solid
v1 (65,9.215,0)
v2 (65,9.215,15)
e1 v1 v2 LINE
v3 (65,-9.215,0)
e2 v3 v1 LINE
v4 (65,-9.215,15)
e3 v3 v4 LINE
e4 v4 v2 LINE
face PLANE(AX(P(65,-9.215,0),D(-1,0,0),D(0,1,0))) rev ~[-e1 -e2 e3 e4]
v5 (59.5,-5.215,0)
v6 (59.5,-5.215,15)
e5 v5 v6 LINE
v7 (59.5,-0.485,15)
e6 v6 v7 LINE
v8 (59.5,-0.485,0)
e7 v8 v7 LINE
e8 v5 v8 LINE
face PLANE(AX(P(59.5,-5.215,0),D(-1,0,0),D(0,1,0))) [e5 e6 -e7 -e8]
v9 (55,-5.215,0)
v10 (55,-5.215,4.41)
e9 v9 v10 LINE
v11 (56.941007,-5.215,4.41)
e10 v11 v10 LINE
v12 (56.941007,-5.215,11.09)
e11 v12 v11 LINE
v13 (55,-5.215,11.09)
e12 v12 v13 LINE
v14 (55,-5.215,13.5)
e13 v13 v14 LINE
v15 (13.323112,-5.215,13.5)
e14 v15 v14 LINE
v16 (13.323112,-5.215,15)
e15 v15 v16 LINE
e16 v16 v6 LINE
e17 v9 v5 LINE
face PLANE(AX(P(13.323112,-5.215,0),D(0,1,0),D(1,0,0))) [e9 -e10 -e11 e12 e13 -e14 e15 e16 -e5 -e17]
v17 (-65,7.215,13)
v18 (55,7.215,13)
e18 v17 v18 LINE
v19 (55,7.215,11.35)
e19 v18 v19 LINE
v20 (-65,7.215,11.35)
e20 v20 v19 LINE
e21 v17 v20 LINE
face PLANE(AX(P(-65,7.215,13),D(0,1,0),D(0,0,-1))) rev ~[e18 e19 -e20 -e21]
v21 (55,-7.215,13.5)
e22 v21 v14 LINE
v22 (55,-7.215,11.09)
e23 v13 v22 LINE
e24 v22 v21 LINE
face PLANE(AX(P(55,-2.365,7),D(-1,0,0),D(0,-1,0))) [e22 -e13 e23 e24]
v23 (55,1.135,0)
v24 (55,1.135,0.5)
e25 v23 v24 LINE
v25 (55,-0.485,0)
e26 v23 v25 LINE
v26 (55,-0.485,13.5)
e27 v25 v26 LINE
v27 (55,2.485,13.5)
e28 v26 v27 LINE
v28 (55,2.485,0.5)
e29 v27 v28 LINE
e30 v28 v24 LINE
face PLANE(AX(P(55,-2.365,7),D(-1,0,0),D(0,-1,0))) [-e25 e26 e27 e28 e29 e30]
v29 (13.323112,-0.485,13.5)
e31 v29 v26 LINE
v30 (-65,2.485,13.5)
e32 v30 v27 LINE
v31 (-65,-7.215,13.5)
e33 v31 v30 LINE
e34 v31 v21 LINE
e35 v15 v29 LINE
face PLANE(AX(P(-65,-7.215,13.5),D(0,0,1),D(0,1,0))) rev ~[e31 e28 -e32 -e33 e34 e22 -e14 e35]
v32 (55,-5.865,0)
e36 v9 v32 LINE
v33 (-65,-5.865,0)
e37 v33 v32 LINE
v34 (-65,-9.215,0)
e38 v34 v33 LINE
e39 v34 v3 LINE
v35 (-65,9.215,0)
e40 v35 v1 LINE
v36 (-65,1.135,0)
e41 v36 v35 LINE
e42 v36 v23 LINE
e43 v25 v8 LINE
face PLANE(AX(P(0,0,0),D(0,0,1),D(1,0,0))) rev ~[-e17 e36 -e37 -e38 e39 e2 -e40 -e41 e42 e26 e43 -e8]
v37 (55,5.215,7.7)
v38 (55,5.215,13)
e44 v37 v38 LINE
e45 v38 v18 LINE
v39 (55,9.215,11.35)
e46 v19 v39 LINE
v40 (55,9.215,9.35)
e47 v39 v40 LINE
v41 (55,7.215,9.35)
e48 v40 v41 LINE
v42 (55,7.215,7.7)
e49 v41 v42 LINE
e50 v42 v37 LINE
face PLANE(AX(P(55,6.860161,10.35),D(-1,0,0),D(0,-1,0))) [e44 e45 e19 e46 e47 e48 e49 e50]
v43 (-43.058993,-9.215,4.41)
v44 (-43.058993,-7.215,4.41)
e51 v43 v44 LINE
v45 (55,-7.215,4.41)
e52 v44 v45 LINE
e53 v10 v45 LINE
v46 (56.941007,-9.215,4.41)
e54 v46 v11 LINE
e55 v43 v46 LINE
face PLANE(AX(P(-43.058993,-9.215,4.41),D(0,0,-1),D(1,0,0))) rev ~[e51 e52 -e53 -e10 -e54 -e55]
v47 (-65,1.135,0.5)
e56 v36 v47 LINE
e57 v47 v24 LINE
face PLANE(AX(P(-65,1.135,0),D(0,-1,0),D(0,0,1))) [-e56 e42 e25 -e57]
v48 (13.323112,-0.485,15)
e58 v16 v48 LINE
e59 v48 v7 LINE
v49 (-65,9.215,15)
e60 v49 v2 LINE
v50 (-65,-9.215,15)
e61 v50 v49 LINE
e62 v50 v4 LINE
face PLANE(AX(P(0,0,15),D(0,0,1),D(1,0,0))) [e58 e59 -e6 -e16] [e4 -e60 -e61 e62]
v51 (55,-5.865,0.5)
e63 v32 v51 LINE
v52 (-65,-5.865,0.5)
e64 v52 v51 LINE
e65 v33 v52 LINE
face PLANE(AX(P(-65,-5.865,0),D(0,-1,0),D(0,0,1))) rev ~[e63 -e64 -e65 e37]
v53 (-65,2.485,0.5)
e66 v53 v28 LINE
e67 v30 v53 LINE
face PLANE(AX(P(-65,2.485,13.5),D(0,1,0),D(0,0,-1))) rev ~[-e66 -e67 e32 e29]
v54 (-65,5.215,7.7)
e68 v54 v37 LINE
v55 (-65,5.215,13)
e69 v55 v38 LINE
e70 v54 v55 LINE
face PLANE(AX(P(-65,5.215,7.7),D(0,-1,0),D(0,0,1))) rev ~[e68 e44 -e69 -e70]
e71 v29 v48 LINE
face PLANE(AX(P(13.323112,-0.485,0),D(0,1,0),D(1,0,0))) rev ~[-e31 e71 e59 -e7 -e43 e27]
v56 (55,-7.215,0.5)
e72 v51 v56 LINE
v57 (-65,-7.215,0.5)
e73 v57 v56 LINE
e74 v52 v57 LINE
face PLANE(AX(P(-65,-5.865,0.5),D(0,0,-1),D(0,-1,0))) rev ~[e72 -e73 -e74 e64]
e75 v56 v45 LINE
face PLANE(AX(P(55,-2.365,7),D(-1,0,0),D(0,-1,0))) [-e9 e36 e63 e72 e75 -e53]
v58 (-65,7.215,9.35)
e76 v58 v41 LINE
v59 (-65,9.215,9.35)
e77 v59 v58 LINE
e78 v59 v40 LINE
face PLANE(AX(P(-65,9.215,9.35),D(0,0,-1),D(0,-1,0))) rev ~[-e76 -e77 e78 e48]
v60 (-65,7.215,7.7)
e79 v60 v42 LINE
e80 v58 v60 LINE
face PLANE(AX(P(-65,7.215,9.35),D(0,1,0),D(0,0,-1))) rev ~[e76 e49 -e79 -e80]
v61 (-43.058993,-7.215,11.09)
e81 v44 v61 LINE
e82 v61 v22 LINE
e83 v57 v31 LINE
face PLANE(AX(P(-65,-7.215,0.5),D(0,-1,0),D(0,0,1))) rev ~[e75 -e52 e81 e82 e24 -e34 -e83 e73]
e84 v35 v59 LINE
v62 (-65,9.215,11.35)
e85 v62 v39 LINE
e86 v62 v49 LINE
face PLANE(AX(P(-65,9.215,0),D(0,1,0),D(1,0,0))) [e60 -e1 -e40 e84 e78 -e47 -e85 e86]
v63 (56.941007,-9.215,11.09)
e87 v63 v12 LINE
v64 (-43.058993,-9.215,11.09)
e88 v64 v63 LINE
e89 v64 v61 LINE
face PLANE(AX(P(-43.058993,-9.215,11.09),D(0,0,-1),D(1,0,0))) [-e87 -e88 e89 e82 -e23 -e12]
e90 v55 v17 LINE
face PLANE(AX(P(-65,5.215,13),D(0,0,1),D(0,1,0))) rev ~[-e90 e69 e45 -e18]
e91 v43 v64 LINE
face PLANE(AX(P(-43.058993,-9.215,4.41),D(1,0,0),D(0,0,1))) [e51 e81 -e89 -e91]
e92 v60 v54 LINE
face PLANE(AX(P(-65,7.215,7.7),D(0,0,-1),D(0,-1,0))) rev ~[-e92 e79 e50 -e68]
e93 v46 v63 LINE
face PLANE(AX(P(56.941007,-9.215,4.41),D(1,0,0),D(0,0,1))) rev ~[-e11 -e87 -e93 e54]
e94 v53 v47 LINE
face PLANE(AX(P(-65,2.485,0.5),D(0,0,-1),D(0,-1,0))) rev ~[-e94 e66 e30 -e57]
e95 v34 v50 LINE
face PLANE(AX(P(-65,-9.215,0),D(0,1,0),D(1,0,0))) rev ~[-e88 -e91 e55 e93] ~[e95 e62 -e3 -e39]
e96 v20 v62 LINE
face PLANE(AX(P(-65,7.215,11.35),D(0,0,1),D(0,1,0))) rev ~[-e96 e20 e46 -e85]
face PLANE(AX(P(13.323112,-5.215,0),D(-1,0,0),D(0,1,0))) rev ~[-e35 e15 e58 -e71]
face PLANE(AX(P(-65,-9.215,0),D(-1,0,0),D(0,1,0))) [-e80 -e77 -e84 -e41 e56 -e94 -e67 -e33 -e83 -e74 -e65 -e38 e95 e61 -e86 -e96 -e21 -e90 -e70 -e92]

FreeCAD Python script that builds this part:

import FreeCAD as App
import Part
import Sketcher
from FreeCAD import Vector
Q = App.Units.Quantity


def add_polygon(sketch, points):
    """Adds a closed chain of lines whose ends are joined by coincident constraints."""
    first, n = sketch.GeometryCount, len(points)
    for a, b in zip(points, points[1:] + points[:1]):
        sketch.addGeometry(Part.LineSegment(App.Vector(*a, 0), App.Vector(*b, 0)), False)
    for i in range(n):
        sketch.addConstraint(Sketcher.Constraint("Coincident", first + i, 2, first + (i + 1) % n, 1))

doc = App.newDocument("Part")
body = doc.addObject("PartDesign::Body", "Body")

sketch1 = body.newObject("Sketcher::SketchObject", "Sketch")
sketch1.AttachmentSupport = (doc.getObject("XY_Plane"), [""])
sketch1.MapMode = "FlatFace"
add_polygon(sketch1, [(-65, 9.215), (-65, -9.215), (65, -9.215), (65, 9.215)])
add_polygon(sketch1, [(59.5, -5.215), (13.323112, -5.215), (13.323112, -0.485), (59.5, -0.485)])
sketch1.addConstraint(Sketcher.Constraint("Vertical", 0))
sketch1.addConstraint(Sketcher.Constraint("Horizontal", 1))
sketch1.addConstraint(Sketcher.Constraint("Vertical", 2))
sketch1.addConstraint(Sketcher.Constraint("Horizontal", 3))
sketch1.addConstraint(Sketcher.Constraint("Horizontal", 4))
sketch1.addConstraint(Sketcher.Constraint("Vertical", 5))
sketch1.addConstraint(Sketcher.Constraint("Horizontal", 6))
sketch1.addConstraint(Sketcher.Constraint("Vertical", 7))
sketch1.addConstraint(Sketcher.Constraint("Symmetric", 0, 2, 2, 2, -1, 1))
sketch1.addConstraint(Sketcher.Constraint("DistanceX", 1, 1, 1, 2, Q("130 mm")))
sketch1.addConstraint(Sketcher.Constraint("DistanceY", 1, 2, 4, 2, Q("4 mm")))
sketch1.addConstraint(Sketcher.Constraint("DistanceY", 0, 2, 0, 1, Q("18.43 mm")))
sketch1.addConstraint(Sketcher.Constraint("DistanceY", 5, 1, 5, 2, Q("4.73 mm")))
sketch1.addConstraint(Sketcher.Constraint("DistanceX", -1, 1, 6, 2, Q("59.5 mm")))
sketch1.addConstraint(Sketcher.Constraint("DistanceX", 4, 2, 4, 1, Q("46.176888 mm")))
pad1 = body.newObject("PartDesign::Pad", "Pad")
pad1.Profile = sketch1
pad1.Length = 15

sketch2 = body.newObject("Sketcher::SketchObject", "Sketch001")
sketch2.AttachmentSupport = (doc.getObject("YZ_Plane"), [""])
sketch2.MapMode = "FlatFace"
sketch2.AttachmentOffset = App.Placement(Vector(0, 0, -65), App.Rotation())
add_polygon(sketch2, [(-7.215, 13.5), (2.485, 13.5), (2.485, 0.5), (1.135, 0.5), (1.135, 0), (-5.865, 0), (-5.865, 0.5), (-7.215, 0.5)])
add_polygon(sketch2, [(7.215, 11.35), (9.215, 11.35), (9.215, 9.35), (7.215, 9.35), (7.215, 7.7), (5.215, 7.7), (5.215, 13), (7.215, 13)])
sketch2.addConstraint(Sketcher.Constraint("Horizontal", 0))
sketch2.addConstraint(Sketcher.Constraint("Vertical", 1))
sketch2.addConstraint(Sketcher.Constraint("Horizontal", 2))
sketch2.addConstraint(Sketcher.Constraint("Vertical", 3))
sketch2.addConstraint(Sketcher.Constraint("Horizontal", 4))
sketch2.addConstraint(Sketcher.Constraint("Vertical", 5))
sketch2.addConstraint(Sketcher.Constraint("Horizontal", 6))
sketch2.addConstraint(Sketcher.Constraint("Vertical", 7))
sketch2.addConstraint(Sketcher.Constraint("Horizontal", 8))
sketch2.addConstraint(Sketcher.Constraint("Vertical", 9))
sketch2.addConstraint(Sketcher.Constraint("Horizontal", 10))
sketch2.addConstraint(Sketcher.Constraint("Vertical", 11))
sketch2.addConstraint(Sketcher.Constraint("Horizontal", 12))
sketch2.addConstraint(Sketcher.Constraint("Vertical", 13))
sketch2.addConstraint(Sketcher.Constraint("Horizontal", 14))
sketch2.addConstraint(Sketcher.Constraint("Vertical", 15))
sketch2.addConstraint(Sketcher.Constraint("PointOnObject", 3, 2, -1))
sketch2.addConstraint(Sketcher.Constraint("Horizontal", 2, 2, 5, 2))
sketch2.addConstraint(Sketcher.Constraint("Vertical", 11, 2, 14, 2))
sketch2.addConstraint(Sketcher.Constraint("Equal", 2, 6))
sketch2.addConstraint(Sketcher.Constraint("Equal", 10, 12))
sketch2.addConstraint(Sketcher.Constraint("Equal", 14, 9))
sketch2.addConstraint(Sketcher.Constraint("Equal", 11, 15))
sketch2.addConstraint(Sketcher.Constraint("DistanceX", 4, 2, 4, 1, Q("7 mm")))
sketch2.addConstraint(Sketcher.Constraint("DistanceX", 8, 1, 8, 2, Q("2 mm")))
sketch2.addConstraint(Sketcher.Constraint("DistanceY", 1, 2, 1, 1, Q("13 mm")))
sketch2.addConstraint(Sketcher.Constraint("DistanceX", 0, 1, 0, 2, Q("9.7 mm")))
sketch2.addConstraint(Sketcher.Constraint("DistanceY", 3, 2, 3, 1, Q("0.5 mm")))
sketch2.addConstraint(Sketcher.Constraint("DistanceY", 13, 1, 13, 2, Q("5.3 mm")))
sketch2.addConstraint(Sketcher.Constraint("DistanceY", -1, 1, 13, 2, Q("13 mm")))
sketch2.addConstraint(Sketcher.Constraint("DistanceX", 0, 2, 8, 2, Q("6.73 mm")))
sketch2.addConstraint(Sketcher.Constraint("DistanceX", -1, 1, 0, 2, Q("2.485 mm")))
pocket1 = body.newObject("PartDesign::Pocket", "Pocket")
pocket1.Profile = sketch2
pocket1.Length = 120
pocket1.Reversed = True

sketch3 = body.newObject("Sketcher::SketchObject", "Sketch002")
sketch3.AttachmentSupport = (doc.getObject("XZ_Plane"), [""])
sketch3.MapMode = "FlatFace"
sketch3.AttachmentOffset = App.Placement(Vector(0, 0, 9.215), App.Rotation())
add_polygon(sketch3, [(-43.058993, 11.09), (-43.058993, 4.41), (56.941007, 4.41), (56.941007, 11.09)])
sketch3.addConstraint(Sketcher.Constraint("Vertical", 0))
sketch3.addConstraint(Sketcher.Constraint("Horizontal", 1))
sketch3.addConstraint(Sketcher.Constraint("Vertical", 2))
sketch3.addConstraint(Sketcher.Constraint("Horizontal", 3))
sketch3.addConstraint(Sketcher.Constraint("DistanceX", 1, 1, 1, 2, Q("100 mm")))
sketch3.addConstraint(Sketcher.Constraint("DistanceY", 0, 2, 0, 1, Q("6.68 mm")))
sketch3.addConstraint(Sketcher.Constraint("DistanceY", -1, 1, 0, 2, Q("4.41 mm")))
sketch3.addConstraint(Sketcher.Constraint("DistanceX", 0, 2, -1, 1, Q("43.058993 mm")))
pocket2 = body.newObject("PartDesign::Pocket", "Pocket001")
pocket2.Profile = sketch3
pocket2.Length = 5

doc.recompute()
